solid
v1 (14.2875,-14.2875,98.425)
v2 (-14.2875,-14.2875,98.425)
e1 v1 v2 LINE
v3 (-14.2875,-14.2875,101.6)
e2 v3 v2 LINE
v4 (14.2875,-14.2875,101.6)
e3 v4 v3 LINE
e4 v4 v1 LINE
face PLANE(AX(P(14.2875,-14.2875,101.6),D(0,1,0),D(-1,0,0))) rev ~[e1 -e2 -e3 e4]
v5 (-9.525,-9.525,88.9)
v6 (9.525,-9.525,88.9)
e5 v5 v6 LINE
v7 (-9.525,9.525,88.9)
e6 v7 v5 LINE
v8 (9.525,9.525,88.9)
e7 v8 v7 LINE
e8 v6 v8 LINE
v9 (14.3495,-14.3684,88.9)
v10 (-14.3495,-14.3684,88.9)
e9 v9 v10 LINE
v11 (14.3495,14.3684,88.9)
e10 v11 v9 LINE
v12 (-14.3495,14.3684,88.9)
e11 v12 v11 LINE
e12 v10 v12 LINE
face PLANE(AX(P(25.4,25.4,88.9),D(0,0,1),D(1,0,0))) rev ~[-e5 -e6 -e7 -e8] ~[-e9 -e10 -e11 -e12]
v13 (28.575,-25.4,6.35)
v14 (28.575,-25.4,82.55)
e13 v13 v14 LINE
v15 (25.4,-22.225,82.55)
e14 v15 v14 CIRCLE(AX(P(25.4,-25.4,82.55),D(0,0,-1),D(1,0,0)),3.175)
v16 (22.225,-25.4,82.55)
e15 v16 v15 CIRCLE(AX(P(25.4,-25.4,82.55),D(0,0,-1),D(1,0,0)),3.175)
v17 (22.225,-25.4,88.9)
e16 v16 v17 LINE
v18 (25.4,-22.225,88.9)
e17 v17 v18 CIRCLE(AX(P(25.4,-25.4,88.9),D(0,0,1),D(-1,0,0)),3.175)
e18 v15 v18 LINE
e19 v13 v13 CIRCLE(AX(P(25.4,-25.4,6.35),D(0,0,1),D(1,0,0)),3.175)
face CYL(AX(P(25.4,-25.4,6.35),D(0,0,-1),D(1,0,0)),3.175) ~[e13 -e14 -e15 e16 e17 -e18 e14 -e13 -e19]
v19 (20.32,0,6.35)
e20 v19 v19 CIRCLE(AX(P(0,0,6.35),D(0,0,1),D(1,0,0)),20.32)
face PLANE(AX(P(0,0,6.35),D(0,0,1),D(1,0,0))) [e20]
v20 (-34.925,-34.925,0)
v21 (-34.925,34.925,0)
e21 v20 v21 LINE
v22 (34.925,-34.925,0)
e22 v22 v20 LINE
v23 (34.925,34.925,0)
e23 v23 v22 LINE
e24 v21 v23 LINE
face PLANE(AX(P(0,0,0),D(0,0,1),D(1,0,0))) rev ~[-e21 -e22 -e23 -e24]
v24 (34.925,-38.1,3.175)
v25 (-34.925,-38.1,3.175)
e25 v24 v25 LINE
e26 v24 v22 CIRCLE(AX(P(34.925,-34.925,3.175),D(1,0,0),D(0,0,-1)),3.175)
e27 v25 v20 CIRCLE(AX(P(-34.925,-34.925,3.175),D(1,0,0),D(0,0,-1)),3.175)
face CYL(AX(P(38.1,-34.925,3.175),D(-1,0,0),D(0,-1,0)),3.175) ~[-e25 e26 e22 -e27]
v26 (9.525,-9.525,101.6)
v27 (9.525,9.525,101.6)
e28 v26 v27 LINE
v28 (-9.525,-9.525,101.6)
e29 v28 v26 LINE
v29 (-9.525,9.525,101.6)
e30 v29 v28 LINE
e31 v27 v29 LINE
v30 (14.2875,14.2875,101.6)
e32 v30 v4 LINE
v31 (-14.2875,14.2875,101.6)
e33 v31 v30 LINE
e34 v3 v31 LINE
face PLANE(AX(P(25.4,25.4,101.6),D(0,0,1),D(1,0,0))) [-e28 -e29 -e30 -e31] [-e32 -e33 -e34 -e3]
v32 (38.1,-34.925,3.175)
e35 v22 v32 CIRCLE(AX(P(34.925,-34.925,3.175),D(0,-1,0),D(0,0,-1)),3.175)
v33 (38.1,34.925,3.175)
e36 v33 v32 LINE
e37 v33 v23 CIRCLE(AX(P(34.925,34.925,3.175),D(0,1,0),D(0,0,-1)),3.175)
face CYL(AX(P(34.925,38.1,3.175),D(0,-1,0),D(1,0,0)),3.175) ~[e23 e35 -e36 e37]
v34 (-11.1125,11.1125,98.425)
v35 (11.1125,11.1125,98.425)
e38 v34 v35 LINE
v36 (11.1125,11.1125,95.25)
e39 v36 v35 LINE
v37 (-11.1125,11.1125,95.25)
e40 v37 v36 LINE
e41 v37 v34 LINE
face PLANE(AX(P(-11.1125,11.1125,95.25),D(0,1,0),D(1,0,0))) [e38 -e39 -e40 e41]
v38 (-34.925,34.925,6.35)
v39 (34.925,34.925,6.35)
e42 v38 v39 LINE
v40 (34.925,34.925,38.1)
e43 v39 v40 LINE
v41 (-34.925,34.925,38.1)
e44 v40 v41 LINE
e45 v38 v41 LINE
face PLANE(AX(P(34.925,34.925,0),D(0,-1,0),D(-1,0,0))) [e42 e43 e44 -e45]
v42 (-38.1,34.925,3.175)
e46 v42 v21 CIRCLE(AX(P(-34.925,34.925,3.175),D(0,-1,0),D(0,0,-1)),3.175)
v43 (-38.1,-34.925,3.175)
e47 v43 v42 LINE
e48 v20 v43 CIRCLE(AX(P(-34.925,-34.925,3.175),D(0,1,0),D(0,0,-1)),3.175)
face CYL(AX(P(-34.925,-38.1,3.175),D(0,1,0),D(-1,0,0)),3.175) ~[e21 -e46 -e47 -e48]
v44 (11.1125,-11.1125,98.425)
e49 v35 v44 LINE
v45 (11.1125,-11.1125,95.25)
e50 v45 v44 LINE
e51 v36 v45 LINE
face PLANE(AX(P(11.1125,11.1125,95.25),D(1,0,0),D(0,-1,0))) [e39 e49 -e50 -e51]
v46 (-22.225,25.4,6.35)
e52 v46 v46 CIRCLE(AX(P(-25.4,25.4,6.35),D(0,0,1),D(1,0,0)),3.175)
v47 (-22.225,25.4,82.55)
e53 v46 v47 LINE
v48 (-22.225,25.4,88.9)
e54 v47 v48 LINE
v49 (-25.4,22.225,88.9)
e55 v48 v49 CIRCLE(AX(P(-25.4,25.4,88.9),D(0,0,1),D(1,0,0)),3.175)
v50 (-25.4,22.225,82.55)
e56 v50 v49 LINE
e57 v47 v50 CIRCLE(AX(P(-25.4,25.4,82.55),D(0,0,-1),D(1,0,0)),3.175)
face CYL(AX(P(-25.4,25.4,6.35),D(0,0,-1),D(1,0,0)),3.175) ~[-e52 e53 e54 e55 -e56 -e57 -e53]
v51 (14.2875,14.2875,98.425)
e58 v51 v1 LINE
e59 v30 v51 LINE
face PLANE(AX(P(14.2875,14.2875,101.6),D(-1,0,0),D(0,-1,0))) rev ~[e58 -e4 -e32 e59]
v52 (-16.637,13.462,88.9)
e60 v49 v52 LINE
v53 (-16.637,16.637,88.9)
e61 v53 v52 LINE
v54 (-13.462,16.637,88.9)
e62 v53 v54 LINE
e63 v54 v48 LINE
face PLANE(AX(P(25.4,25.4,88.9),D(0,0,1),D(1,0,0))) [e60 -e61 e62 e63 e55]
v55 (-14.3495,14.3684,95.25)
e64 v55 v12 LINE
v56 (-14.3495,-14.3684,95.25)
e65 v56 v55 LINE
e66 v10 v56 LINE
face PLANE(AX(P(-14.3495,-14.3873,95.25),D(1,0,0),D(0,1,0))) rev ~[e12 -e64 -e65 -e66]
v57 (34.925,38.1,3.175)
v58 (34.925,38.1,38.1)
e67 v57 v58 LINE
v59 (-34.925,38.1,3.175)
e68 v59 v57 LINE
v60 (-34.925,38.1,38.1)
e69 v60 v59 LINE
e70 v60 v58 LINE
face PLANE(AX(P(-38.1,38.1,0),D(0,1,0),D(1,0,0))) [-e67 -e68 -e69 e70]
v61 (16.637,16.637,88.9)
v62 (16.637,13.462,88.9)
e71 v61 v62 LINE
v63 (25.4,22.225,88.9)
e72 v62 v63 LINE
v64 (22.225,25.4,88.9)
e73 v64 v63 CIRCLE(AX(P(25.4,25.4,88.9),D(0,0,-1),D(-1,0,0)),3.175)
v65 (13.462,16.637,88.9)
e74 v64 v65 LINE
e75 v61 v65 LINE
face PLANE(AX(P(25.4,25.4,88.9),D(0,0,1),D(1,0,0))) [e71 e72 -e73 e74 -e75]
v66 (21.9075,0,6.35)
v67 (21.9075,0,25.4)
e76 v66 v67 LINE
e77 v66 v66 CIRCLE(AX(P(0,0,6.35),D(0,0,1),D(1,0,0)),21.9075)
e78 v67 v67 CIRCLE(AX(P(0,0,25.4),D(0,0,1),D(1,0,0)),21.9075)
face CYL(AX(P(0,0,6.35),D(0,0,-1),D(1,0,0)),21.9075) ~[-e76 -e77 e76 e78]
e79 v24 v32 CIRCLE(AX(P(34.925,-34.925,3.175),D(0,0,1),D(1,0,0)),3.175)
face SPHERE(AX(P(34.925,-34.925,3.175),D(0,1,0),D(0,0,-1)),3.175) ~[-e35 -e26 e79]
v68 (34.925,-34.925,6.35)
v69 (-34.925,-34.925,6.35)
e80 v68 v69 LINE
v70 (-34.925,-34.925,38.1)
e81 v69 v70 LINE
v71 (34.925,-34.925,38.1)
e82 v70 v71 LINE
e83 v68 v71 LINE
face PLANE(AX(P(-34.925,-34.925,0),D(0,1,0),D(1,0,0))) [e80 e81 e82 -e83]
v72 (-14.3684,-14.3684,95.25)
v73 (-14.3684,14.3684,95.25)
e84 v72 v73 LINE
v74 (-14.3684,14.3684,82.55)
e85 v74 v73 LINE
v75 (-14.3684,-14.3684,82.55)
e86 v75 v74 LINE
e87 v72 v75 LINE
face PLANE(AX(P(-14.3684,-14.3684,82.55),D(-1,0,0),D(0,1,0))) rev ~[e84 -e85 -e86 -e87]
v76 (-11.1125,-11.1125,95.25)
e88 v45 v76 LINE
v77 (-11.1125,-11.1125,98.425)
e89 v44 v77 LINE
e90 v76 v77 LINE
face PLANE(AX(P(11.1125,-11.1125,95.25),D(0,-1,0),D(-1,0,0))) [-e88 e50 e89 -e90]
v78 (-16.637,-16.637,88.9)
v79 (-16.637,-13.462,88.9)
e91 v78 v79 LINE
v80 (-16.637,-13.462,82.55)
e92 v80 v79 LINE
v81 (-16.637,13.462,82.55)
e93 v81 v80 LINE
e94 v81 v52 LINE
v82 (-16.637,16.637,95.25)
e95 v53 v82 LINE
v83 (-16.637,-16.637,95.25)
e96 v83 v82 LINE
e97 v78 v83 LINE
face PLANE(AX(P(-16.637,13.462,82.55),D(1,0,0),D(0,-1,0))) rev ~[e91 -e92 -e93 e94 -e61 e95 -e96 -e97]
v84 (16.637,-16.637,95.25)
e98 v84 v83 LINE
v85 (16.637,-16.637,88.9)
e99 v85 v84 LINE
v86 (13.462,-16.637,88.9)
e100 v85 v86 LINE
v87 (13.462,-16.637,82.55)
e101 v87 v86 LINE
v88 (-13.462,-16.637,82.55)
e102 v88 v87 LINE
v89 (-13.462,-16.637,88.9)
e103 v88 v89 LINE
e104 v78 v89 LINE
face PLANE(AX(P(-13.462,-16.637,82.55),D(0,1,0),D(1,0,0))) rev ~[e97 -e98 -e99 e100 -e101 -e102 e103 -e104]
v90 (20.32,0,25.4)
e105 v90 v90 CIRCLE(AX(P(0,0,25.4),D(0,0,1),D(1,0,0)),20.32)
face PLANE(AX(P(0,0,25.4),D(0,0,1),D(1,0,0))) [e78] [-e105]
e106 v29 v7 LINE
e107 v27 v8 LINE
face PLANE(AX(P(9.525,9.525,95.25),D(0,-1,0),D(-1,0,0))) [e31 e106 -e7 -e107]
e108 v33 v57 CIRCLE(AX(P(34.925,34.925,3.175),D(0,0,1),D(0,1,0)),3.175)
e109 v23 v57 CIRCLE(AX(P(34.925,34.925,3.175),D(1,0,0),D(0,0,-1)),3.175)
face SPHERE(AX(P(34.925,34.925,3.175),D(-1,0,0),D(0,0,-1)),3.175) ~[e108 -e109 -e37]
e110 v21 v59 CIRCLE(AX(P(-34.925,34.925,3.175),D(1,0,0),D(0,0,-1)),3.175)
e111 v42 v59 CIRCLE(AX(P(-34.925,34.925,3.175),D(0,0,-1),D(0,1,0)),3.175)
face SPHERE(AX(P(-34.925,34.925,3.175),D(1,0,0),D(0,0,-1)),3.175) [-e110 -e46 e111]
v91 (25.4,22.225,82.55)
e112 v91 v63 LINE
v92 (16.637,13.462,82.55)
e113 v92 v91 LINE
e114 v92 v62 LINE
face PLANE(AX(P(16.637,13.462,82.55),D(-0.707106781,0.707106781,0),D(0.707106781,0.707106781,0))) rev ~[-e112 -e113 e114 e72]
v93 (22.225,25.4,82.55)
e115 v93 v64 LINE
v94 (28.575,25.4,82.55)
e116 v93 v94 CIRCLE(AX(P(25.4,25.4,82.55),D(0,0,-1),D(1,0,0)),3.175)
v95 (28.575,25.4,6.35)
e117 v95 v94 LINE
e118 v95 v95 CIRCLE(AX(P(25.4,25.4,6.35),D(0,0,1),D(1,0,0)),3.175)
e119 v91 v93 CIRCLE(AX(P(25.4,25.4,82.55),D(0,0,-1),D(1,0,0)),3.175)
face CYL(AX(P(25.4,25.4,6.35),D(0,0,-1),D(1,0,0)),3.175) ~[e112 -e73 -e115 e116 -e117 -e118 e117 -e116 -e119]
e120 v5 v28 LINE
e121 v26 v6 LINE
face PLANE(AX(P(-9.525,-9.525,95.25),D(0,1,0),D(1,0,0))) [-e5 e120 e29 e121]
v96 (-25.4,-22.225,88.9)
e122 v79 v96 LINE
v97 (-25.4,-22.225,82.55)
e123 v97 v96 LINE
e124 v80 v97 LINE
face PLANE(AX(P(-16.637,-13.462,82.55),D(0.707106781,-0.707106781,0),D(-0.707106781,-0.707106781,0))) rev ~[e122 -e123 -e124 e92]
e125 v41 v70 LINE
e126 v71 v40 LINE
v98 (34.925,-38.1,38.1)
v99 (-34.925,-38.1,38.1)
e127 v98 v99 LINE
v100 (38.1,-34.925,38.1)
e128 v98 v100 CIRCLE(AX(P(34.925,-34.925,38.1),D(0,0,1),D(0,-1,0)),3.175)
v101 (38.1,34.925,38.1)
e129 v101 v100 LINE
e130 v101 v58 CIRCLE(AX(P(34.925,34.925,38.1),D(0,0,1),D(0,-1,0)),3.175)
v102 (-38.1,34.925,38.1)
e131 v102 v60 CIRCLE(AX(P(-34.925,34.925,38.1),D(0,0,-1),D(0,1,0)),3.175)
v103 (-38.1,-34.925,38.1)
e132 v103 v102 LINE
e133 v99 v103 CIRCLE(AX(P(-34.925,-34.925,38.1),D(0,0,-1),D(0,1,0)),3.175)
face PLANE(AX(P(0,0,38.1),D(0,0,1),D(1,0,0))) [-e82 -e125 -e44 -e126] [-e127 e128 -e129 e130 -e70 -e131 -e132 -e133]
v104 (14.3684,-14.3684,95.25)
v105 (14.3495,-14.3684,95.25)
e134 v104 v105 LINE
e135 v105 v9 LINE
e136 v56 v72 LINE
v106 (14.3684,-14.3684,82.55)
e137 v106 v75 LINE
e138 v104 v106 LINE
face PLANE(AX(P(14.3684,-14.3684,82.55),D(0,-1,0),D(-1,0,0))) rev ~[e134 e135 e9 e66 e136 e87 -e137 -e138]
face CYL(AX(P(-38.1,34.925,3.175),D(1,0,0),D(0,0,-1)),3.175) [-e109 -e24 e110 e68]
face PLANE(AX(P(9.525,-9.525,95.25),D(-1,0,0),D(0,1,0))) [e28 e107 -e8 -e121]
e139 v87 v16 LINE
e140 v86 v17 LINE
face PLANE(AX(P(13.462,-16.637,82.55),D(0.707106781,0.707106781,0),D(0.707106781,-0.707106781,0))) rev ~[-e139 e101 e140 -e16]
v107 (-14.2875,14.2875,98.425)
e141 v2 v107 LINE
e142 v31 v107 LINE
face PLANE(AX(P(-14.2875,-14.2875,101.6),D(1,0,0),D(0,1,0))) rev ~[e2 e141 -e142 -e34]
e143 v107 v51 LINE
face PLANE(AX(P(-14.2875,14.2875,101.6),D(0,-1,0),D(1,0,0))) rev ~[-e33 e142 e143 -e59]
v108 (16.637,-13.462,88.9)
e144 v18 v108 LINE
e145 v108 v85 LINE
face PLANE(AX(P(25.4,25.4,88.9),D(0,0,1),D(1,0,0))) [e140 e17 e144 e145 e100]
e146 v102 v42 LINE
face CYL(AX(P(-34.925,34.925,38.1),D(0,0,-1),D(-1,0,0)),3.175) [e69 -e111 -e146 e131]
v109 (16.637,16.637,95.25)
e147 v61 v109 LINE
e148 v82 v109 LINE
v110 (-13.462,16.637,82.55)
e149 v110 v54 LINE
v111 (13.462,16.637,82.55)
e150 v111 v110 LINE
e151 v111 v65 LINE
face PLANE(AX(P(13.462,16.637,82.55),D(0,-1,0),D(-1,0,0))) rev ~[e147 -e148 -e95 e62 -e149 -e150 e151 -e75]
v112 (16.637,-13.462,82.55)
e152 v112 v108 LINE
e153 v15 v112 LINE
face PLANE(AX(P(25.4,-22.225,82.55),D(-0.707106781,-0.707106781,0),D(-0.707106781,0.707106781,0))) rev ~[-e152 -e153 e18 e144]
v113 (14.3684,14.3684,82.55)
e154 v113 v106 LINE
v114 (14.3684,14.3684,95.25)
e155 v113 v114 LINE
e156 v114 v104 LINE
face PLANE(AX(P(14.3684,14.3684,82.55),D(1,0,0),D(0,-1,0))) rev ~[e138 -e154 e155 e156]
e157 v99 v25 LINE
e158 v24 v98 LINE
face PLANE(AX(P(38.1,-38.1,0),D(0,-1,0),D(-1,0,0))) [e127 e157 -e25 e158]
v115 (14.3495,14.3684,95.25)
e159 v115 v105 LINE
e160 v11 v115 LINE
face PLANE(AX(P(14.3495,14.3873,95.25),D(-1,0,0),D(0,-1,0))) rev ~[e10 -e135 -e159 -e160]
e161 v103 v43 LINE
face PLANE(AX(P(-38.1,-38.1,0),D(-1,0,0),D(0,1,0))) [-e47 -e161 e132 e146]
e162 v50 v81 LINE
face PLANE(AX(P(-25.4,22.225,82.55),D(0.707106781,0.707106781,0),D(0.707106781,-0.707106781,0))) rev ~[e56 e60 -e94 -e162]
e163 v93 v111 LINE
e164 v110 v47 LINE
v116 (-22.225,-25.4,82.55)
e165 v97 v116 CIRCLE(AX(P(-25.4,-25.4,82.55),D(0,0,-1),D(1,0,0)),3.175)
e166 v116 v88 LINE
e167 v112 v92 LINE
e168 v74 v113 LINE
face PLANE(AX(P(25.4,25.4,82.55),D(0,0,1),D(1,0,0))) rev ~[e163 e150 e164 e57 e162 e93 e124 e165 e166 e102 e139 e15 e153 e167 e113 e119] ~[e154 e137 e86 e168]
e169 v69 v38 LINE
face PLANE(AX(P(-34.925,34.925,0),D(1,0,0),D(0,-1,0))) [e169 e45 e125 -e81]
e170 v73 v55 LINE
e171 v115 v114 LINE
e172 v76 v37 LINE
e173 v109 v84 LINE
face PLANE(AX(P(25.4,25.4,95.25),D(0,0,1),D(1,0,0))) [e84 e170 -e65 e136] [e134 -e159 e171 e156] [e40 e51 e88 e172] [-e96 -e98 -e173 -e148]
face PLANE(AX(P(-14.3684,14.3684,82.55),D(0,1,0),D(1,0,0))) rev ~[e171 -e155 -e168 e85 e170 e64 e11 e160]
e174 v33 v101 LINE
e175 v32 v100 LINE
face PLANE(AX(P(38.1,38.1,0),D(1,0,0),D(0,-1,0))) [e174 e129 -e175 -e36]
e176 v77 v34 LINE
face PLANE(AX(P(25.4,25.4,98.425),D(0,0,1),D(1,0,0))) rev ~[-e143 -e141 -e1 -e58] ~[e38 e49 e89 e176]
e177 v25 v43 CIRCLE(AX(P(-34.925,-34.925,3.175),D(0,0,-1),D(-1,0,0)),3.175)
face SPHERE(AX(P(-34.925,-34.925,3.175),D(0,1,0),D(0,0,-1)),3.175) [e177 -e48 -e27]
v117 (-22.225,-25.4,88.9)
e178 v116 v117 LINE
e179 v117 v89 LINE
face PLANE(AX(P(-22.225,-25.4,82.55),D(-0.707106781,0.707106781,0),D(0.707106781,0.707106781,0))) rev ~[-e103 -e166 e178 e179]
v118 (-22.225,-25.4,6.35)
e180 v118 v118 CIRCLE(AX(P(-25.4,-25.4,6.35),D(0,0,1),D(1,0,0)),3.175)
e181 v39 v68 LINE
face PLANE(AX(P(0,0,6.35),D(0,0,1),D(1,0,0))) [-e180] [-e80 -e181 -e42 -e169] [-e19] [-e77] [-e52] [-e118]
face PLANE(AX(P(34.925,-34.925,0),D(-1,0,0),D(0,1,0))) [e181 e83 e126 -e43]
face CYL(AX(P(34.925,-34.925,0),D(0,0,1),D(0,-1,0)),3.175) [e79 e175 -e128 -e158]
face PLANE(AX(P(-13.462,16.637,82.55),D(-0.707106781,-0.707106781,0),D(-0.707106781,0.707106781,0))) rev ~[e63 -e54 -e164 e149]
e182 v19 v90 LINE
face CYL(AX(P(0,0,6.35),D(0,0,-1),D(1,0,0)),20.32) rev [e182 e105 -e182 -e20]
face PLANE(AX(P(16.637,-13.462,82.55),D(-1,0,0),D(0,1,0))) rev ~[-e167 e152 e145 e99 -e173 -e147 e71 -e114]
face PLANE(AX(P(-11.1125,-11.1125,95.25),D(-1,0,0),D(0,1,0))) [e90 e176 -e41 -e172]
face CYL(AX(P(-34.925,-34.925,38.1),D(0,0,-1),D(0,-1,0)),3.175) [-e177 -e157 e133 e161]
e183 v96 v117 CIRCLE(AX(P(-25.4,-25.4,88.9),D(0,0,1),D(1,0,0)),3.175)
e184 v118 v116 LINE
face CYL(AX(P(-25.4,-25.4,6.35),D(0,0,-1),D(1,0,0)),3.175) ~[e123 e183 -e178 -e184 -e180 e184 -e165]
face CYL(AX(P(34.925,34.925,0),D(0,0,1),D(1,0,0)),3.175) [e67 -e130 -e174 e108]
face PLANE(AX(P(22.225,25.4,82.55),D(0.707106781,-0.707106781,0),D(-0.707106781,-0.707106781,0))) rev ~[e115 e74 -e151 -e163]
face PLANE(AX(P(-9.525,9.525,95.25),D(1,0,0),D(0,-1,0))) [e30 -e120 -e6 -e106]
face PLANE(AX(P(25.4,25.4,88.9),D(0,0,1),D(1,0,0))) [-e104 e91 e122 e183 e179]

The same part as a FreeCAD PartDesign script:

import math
import FreeCAD as App
import Part
import Sketcher
Q = App.Units.Quantity


def edges_at(feature, points):
    """Names of the edges that pass closest to the given points."""
    edges = feature.Shape.Edges
    near = lambda p: min(range(len(edges)), key=lambda i: edges[i].distToShape(Part.Vertex(*p))[0])
    return sorted({f"Edge{near(p) + 1}" for p in points})

doc = App.newDocument("Part")
body = doc.addObject("PartDesign::Body", "Body")

sketch1 = body.newObject("Sketcher::SketchObject", "Sketch")
sketch1.AttachmentSupport = (doc.getObject("XY_Plane"), [""])
sketch1.MapMode = "FlatFace"
sketch1.addGeometry(Part.LineSegment(App.Vector(-38.1, -38.1, 0), App.Vector(38.1, -38.1, 0)), False)
sketch1.addGeometry(Part.LineSegment(App.Vector(38.1, -38.1, 0), App.Vector(38.1, 38.1, 0)), False)
sketch1.addGeometry(Part.LineSegment(App.Vector(38.1, 38.1, 0), App.Vector(-38.1, 38.1, 0)), False)
sketch1.addGeometry(Part.LineSegment(App.Vector(-38.1, 38.1, 0), App.Vector(-38.1, -38.1, 0)), False)
sketch1.addConstraint(Sketcher.Constraint("Coincident", 0, 2, 1, 1))
sketch1.addConstraint(Sketcher.Constraint("Coincident", 1, 2, 2, 1))
sketch1.addConstraint(Sketcher.Constraint("Coincident", 2, 2, 3, 1))
sketch1.addConstraint(Sketcher.Constraint("Coincident", 3, 2, 0, 1))
sketch1.addConstraint(Sketcher.Constraint("Horizontal", 0))
sketch1.addConstraint(Sketcher.Constraint("Vertical", 1))
sketch1.addConstraint(Sketcher.Constraint("Horizontal", 2))
sketch1.addConstraint(Sketcher.Constraint("Vertical", 3))
sketch1.addConstraint(Sketcher.Constraint("Symmetric", 0, 2, 2, 2, -1, 1))
sketch1.addConstraint(Sketcher.Constraint("Equal", 2, 1))
sketch1.addConstraint(Sketcher.Constraint("DistanceX", 0, 1, 0, 2, Q("3 in")))
pad1 = body.newObject("PartDesign::Pad", "Pad")
pad1.Profile = sketch1
pad1.Length = Q("0.25 in")

sketch2 = body.newObject("Sketcher::SketchObject", "Sketch001")
sketch2.AttachmentSupport = (doc.getObject("XY_Plane"), [""])
sketch2.MapMode = "FlatFace"
sketch2.addGeometry(Part.LineSegment(App.Vector(-38.1, -38.1, 0), App.Vector(38.1, -38.1, 0)), False)
sketch2.addGeometry(Part.LineSegment(App.Vector(38.1, -38.1, 0), App.Vector(38.1, 38.1, 0)), False)
sketch2.addGeometry(Part.LineSegment(App.Vector(38.1, 38.1, 0), App.Vector(-38.1, 38.1, 0)), False)
sketch2.addGeometry(Part.LineSegment(App.Vector(-38.1, 38.1, 0), App.Vector(-38.1, -38.1, 0)), False)
sketch2.addGeometry(Part.LineSegment(App.Vector(34.925, -34.925, 0), App.Vector(-34.925, -34.925, 0)), False)
sketch2.addGeometry(Part.LineSegment(App.Vector(-34.925, -34.925, 0), App.Vector(-34.925, 34.925, 0)), False)
sketch2.addGeometry(Part.LineSegment(App.Vector(-34.925, 34.925, 0), App.Vector(34.925, 34.925, 0)), False)
sketch2.addGeometry(Part.LineSegment(App.Vector(34.925, 34.925, 0), App.Vector(34.925, -34.925, 0)), False)
sketch2.addConstraint(Sketcher.Constraint("Coincident", 0, 2, 1, 1))
sketch2.addConstraint(Sketcher.Constraint("Coincident", 1, 2, 2, 1))
sketch2.addConstraint(Sketcher.Constraint("Coincident", 2, 2, 3, 1))
sketch2.addConstraint(Sketcher.Constraint("Coincident", 3, 2, 0, 1))
sketch2.addConstraint(Sketcher.Constraint("Coincident", 4, 2, 5, 1))
sketch2.addConstraint(Sketcher.Constraint("Coincident", 5, 2, 6, 1))
sketch2.addConstraint(Sketcher.Constraint("Coincident", 6, 2, 7, 1))
sketch2.addConstraint(Sketcher.Constraint("Coincident", 7, 2, 4, 1))
sketch2.addConstraint(Sketcher.Constraint("Horizontal", 0))
sketch2.addConstraint(Sketcher.Constraint("Vertical", 1))
sketch2.addConstraint(Sketcher.Constraint("Horizontal", 2))
sketch2.addConstraint(Sketcher.Constraint("Vertical", 3))
sketch2.addConstraint(Sketcher.Constraint("Horizontal", 4))
sketch2.addConstraint(Sketcher.Constraint("Vertical", 5))
sketch2.addConstraint(Sketcher.Constraint("Horizontal", 6))
sketch2.addConstraint(Sketcher.Constraint("Vertical", 7))
sketch2.addConstraint(Sketcher.Constraint("Symmetric", 0, 2, 2, 2, -1, 1))
sketch2.addConstraint(Sketcher.Constraint("Symmetric", 4, 2, 6, 2, -1, 1))
sketch2.addConstraint(Sketcher.Constraint("Equal", 2, 1))
sketch2.addConstraint(Sketcher.Constraint("Equal", 6, 5))
sketch2.addConstraint(Sketcher.Constraint("DistanceX", 0, 1, 0, 2, Q("3 in")))
sketch2.addConstraint(Sketcher.Constraint("DistanceX", 4, 2, 4, 1, Q("2.75 in")))
pad2 = body.newObject("PartDesign::Pad", "Pad001")
pad2.Profile = sketch2
pad2.Length = Q("1.5 in")
doc.recompute()

fillet = body.newObject("PartDesign::Fillet", "Fillet")
fillet.Base = (pad2, edges_at(pad2, [
    (0, 38.1, 0),
    (38.1, 0, 0),
    (-38.1, 0, 0),
    (0, -38.1, 0),
    (38.1, 38.1, 19.05),
    (-38.1, 38.1, 19.05),
    (38.1, -38.1, 19.05),
    (-38.1, -38.1, 19.05),
]))
fillet.Radius = Q("0.125 in")

sketch3 = body.newObject("Sketcher::SketchObject", "Sketch002")
sketch3.AttachmentSupport = (doc.getObject("XY_Plane"), [""])
sketch3.MapMode = "FlatFace"
sketch3.AttachmentOffset = App.Placement(App.Vector(0, 0, 0.25 * 25.4), App.Rotation())
sketch3.addGeometry(Part.Circle(App.Vector(0, 0, 0), App.Vector(0, 0, 1), 21.9075), False)
sketch3.addGeometry(Part.Circle(App.Vector(0, 0, 0), App.Vector(0, 0, 1), 20.32), False)
sketch3.addConstraint(Sketcher.Constraint("Coincident", 0, 3, -1, 1))
sketch3.addConstraint(Sketcher.Constraint("Coincident", 1, 3, -1, 1))
sketch3.addConstraint(Sketcher.Constraint("Diameter", 1, Q("1.6 in")))
sketch3.addConstraint(Sketcher.Constraint("Diameter", 0, Q("1.725 in")))
pad3 = body.newObject("PartDesign::Pad", "Pad002")
pad3.Profile = sketch3
pad3.Length = Q("0.75 in")

sketch4 = body.newObject("Sketcher::SketchObject", "Sketch003")
sketch4.AttachmentSupport = (doc.getObject("XY_Plane"), [""])
sketch4.MapMode = "FlatFace"
sketch4.AttachmentOffset = App.Placement(App.Vector(0, 0, 0.25 * 25.4), App.Rotation())
sketch4.addGeometry(Part.Circle(App.Vector(-25.4, -25.4, 0), App.Vector(0, 0, 1), 3.175), False)
sketch4.addGeometry(Part.Circle(App.Vector(25.4, -25.4, 0), App.Vector(0, 0, 1), 3.175), False)
sketch4.addGeometry(Part.Circle(App.Vector(-25.4, 25.4, 0), App.Vector(0, 0, 1), 3.175), False)
sketch4.addGeometry(Part.Circle(App.Vector(25.4, 25.4, 0), App.Vector(0, 0, 1), 3.175), False)
sketch4.addConstraint(Sketcher.Constraint("Equal", 0, 1))
sketch4.addConstraint(Sketcher.Constraint("Equal", 1, 2))
sketch4.addConstraint(Sketcher.Constraint("Equal", 2, 3))
sketch4.addConstraint(Sketcher.Constraint("Symmetric", 1, 3, 2, 3, -1, 1))
sketch4.addConstraint(Sketcher.Constraint("Symmetric", 0, 3, 3, 3, -1, 1))
sketch4.addConstraint(Sketcher.Constraint("Symmetric", 0, 3, 1, 3, -2))
sketch4.addConstraint(Sketcher.Constraint("Diameter", 0, Q("0.25 in")))
sketch4.addConstraint(Sketcher.Constraint("DistanceX", 0, 3, 1, 3, Q("2 in")))
sketch4.addConstraint(Sketcher.Constraint("DistanceY", 0, 3, 2, 3, Q("2 in")))
pad4 = body.newObject("PartDesign::Pad", "Pad003")
pad4.Profile = sketch4
pad4.Length = Q("3 in")

sketch5 = body.newObject("Sketcher::SketchObject", "Sketch004")
sketch5.AttachmentSupport = (doc.getObject("XY_Plane"), [""])
sketch5.MapMode = "FlatFace"
sketch5.AttachmentOffset = App.Placement(App.Vector(0, 0, 3.25 * 25.4), App.Rotation())
sketch5.addGeometry(Part.LineSegment(App.Vector(22.225, 25.4, 0), App.Vector(13.462, 16.637, 0)), False)
sketch5.addGeometry(Part.LineSegment(App.Vector(13.462, 16.637, 0), App.Vector(-13.462, 16.637, 0)), False)
sketch5.addGeometry(Part.LineSegment(App.Vector(-13.462, 16.637, 0), App.Vector(-22.225, 25.4, 0)), False)
sketch5.addGeometry(Part.ArcOfCircle(Part.Circle(App.Vector(-25.4, 25.4, 0), App.Vector(0, 0, 1), 3.175), math.radians(0), math.radians(270)), False)
sketch5.addGeometry(Part.LineSegment(App.Vector(-25.4, 22.225, 0), App.Vector(-16.637, 13.462, 0)), False)
sketch5.addGeometry(Part.LineSegment(App.Vector(-16.637, 13.462, 0), App.Vector(-16.637, -13.462, 0)), False)
sketch5.addGeometry(Part.LineSegment(App.Vector(-16.637, -13.462, 0), App.Vector(-25.4, -22.225, 0)), False)
sketch5.addGeometry(Part.ArcOfCircle(Part.Circle(App.Vector(-25.4, -25.4, 0), App.Vector(0, 0, 1), 3.175), math.radians(90), math.radians(360)), False)
sketch5.addGeometry(Part.LineSegment(App.Vector(-22.225, -25.4, 0), App.Vector(-13.462, -16.637, 0)), False)
sketch5.addGeometry(Part.LineSegment(App.Vector(-13.462, -16.637, 0), App.Vector(13.462, -16.637, 0)), False)
sketch5.addGeometry(Part.LineSegment(App.Vector(13.462, -16.637, 0), App.Vector(22.225, -25.4, 0)), False)
sketch5.addGeometry(Part.ArcOfCircle(Part.Circle(App.Vector(25.4, -25.4, 0), App.Vector(0, 0, 1), 3.175), math.radians(180), math.radians(450)), False)
sketch5.addGeometry(Part.LineSegment(App.Vector(25.4, -22.225, 0), App.Vector(16.637, -13.462, 0)), False)
sketch5.addGeometry(Part.LineSegment(App.Vector(16.637, -13.462, 0), App.Vector(16.637, 13.462, 0)), False)
sketch5.addGeometry(Part.LineSegment(App.Vector(16.637, 13.462, 0), App.Vector(25.4, 22.225, 0)), False)
sketch5.addGeometry(Part.ArcOfCircle(Part.Circle(App.Vector(25.4, 25.4, 0), App.Vector(0, 0, 1), 3.175), math.radians(-90), math.radians(180)), False)
sketch5.addGeometry(Part.LineSegment(App.Vector(-14.3684, -14.3684, 0), App.Vector(-14.3684, 14.3684, 0)), False)
sketch5.addGeometry(Part.LineSegment(App.Vector(-14.3684, 14.3684, 0), App.Vector(14.3684, 14.3684, 0)), False)
sketch5.addGeometry(Part.LineSegment(App.Vector(14.3684, 14.3684, 0), App.Vector(14.3684, -14.3684, 0)), False)
sketch5.addGeometry(Part.LineSegment(App.Vector(14.3684, -14.3684, 0), App.Vector(-14.3684, -14.3684, 0)), False)
sketch5.addConstraint(Sketcher.Constraint("Coincident", 0, 2, 1, 1))
sketch5.addConstraint(Sketcher.Constraint("Coincident", 1, 2, 2, 1))
sketch5.addConstraint(Sketcher.Constraint("Coincident", 2, 2, 3, 1))
sketch5.addConstraint(Sketcher.Constraint("Coincident", 3, 2, 4, 1))
sketch5.addConstraint(Sketcher.Constraint("Coincident", 4, 2, 5, 1))
sketch5.addConstraint(Sketcher.Constraint("Coincident", 5, 2, 6, 1))
sketch5.addConstraint(Sketcher.Constraint("Coincident", 6, 2, 7, 1))
sketch5.addConstraint(Sketcher.Constraint("Coincident", 7, 2, 8, 1))
sketch5.addConstraint(Sketcher.Constraint("Coincident", 8, 2, 9, 1))
sketch5.addConstraint(Sketcher.Constraint("Coincident", 9, 2, 10, 1))
sketch5.addConstraint(Sketcher.Constraint("Coincident", 10, 2, 11, 1))
sketch5.addConstraint(Sketcher.Constraint("Coincident", 11, 2, 12, 1))
sketch5.addConstraint(Sketcher.Constraint("Coincident", 12, 2, 13, 1))
sketch5.addConstraint(Sketcher.Constraint("Coincident", 13, 2, 14, 1))
sketch5.addConstraint(Sketcher.Constraint("Coincident", 14, 2, 15, 1))
sketch5.addConstraint(Sketcher.Constraint("Coincident", 15, 2, 0, 1))
sketch5.addConstraint(Sketcher.Constraint("Coincident", 16, 2, 17, 1))
sketch5.addConstraint(Sketcher.Constraint("Coincident", 17, 2, 18, 1))
sketch5.addConstraint(Sketcher.Constraint("Coincident", 18, 2, 19, 1))
sketch5.addConstraint(Sketcher.Constraint("Coincident", 19, 2, 16, 1))
sketch5.addConstraint(Sketcher.Constraint("Horizontal", 1))
sketch5.addConstraint(Sketcher.Constraint("Vertical", 5))
sketch5.addConstraint(Sketcher.Constraint("Horizontal", 9))
sketch5.addConstraint(Sketcher.Constraint("Vertical", 13))
sketch5.addConstraint(Sketcher.Constraint("Vertical", 16))
sketch5.addConstraint(Sketcher.Constraint("Horizontal", 17))
sketch5.addConstraint(Sketcher.Constraint("Vertical", 18))
sketch5.addConstraint(Sketcher.Constraint("Horizontal", 19))
sketch5.addConstraint(Sketcher.Constraint("Equal", 3, 7))
sketch5.addConstraint(Sketcher.Constraint("Equal", 7, 11))
sketch5.addConstraint(Sketcher.Constraint("Equal", 11, 15))
sketch5.addConstraint(Sketcher.Constraint("Symmetric", 3, 3, 11, 3, -1, 1))
sketch5.addConstraint(Sketcher.Constraint("Symmetric", 7, 3, 15, 3, -1, 1))
sketch5.addConstraint(Sketcher.Constraint("Symmetric", 0, 2, 8, 2, -1, 1))
sketch5.addConstraint(Sketcher.Constraint("Symmetric", 4, 2, 12, 2, -1, 1))
sketch5.addConstraint(Sketcher.Constraint("Symmetric", 16, 2, 18, 2, -1, 1))
sketch5.addConstraint(Sketcher.Constraint("Symmetric", 7, 3, 11, 3, -2))
sketch5.addConstraint(Sketcher.Constraint("Perpendicular", 0, 2))
sketch5.addConstraint(Sketcher.Constraint("Parallel", 2, 4))
sketch5.addConstraint(Sketcher.Constraint("Perpendicular", 4, 6))
sketch5.addConstraint(Sketcher.Constraint("Parallel", 6, 8))
sketch5.addConstraint(Sketcher.Constraint("Perpendicular", 8, 10))
sketch5.addConstraint(Sketcher.Constraint("Parallel", 10, 12))
sketch5.addConstraint(Sketcher.Constraint("Perpendicular", 12, 14))
sketch5.addConstraint(Sketcher.Constraint("Horizontal", 15, 3, 2, 2))
sketch5.addConstraint(Sketcher.Constraint("Horizontal", 11, 3, 7, 2))
sketch5.addConstraint(Sketcher.Constraint("Horizontal", 7, 2, 10, 2))
sketch5.addConstraint(Sketcher.Constraint("Horizontal", 5, 2, 12, 2))
sketch5.addConstraint(Sketcher.Constraint("Horizontal", 4, 2, 13, 2))
sketch5.addConstraint(Sketcher.Constraint("Vertical", 7, 3, 3, 2))
sketch5.addConstraint(Sketcher.Constraint("Vertical", 3, 2, 6, 2))
sketch5.addConstraint(Sketcher.Constraint("Equal", 9, 5))
sketch5.addConstraint(Sketcher.Constraint("Equal", 19, 16))
sketch5.addConstraint(Sketcher.Constraint("Equal", 2, 4))
sketch5.addConstraint(Sketcher.Constraint("DistanceY", 7, 3, 3, 3, Q("2 in")))
sketch5.addConstraint(Sketcher.Constraint("DistanceY", 9, 2, 0, 2, Q("1.31 in")))
sketch5.addConstraint(Sketcher.Constraint("Radius", 3, Q("0.125 in")))
sketch5.addConstraint(Sketcher.Constraint("DistanceX", 17, 1, 17, 2, Q("28.7368 mm")))
pad5 = body.newObject("PartDesign::Pad", "Pad004")
pad5.Profile = sketch5
pad5.Length = Q("0.25 in")

sketch6 = body.newObject("Sketcher::SketchObject", "Sketch005")
sketch6.AttachmentSupport = (doc.getObject("XY_Plane"), [""])
sketch6.MapMode = "FlatFace"
sketch6.AttachmentOffset = App.Placement(App.Vector(0, 0, 3.25 * 25.4), App.Rotation())
sketch6.addGeometry(Part.LineSegment(App.Vector(16.637, 16.637, 0), App.Vector(-16.637, 16.637, 0)), False)
sketch6.addGeometry(Part.LineSegment(App.Vector(-16.637, 16.637, 0), App.Vector(-16.637, -16.637, 0)), False)
sketch6.addGeometry(Part.LineSegment(App.Vector(-16.637, -16.637, 0), App.Vector(16.637, -16.637, 0)), False)
sketch6.addGeometry(Part.LineSegment(App.Vector(16.637, -16.637, 0), App.Vector(16.637, 16.637, 0)), False)
sketch6.addGeometry(Part.LineSegment(App.Vector(14.3684, 14.3684, 0), App.Vector(14.3684, -14.3684, 0)), False)
sketch6.addGeometry(Part.LineSegment(App.Vector(14.3684, -14.3684, 0), App.Vector(-14.3684, -14.3684, 0)), False)
sketch6.addGeometry(Part.LineSegment(App.Vector(-14.3684, -14.3684, 0), App.Vector(-14.3684, 14.3684, 0)), False)
sketch6.addGeometry(Part.LineSegment(App.Vector(-14.3684, 14.3684, 0), App.Vector(14.3684, 14.3684, 0)), False)
sketch6.addConstraint(Sketcher.Constraint("Coincident", 0, 2, 1, 1))
sketch6.addConstraint(Sketcher.Constraint("Coincident", 1, 2, 2, 1))
sketch6.addConstraint(Sketcher.Constraint("Coincident", 2, 2, 3, 1))
sketch6.addConstraint(Sketcher.Constraint("Coincident", 3, 2, 0, 1))
sketch6.addConstraint(Sketcher.Constraint("Coincident", 4, 2, 5, 1))
sketch6.addConstraint(Sketcher.Constraint("Coincident", 5, 2, 6, 1))
sketch6.addConstraint(Sketcher.Constraint("Coincident", 6, 2, 7, 1))
sketch6.addConstraint(Sketcher.Constraint("Coincident", 7, 2, 4, 1))
sketch6.addConstraint(Sketcher.Constraint("Horizontal", 0))
sketch6.addConstraint(Sketcher.Constraint("Vertical", 1))
sketch6.addConstraint(Sketcher.Constraint("Horizontal", 2))
sketch6.addConstraint(Sketcher.Constraint("Vertical", 3))
sketch6.addConstraint(Sketcher.Constraint("Vertical", 4))
sketch6.addConstraint(Sketcher.Constraint("Horizontal", 5))
sketch6.addConstraint(Sketcher.Constraint("Vertical", 6))
sketch6.addConstraint(Sketcher.Constraint("Horizontal", 7))
sketch6.addConstraint(Sketcher.Constraint("Symmetric", 0, 2, 2, 2, -1, 1))
sketch6.addConstraint(Sketcher.Constraint("Symmetric", 4, 2, 6, 2, -1, 1))
sketch6.addConstraint(Sketcher.Constraint("Equal", 2, 1))
sketch6.addConstraint(Sketcher.Constraint("Equal", 7, 4))
sketch6.addConstraint(Sketcher.Constraint("DistanceX", 0, 2, 0, 1, Q("1.31 in")))
sketch6.addConstraint(Sketcher.Constraint("DistanceX", 5, 2, 5, 1, Q("28.7368 mm")))
pad6 = body.newObject("PartDesign::Pad", "Pad005")
pad6.Profile = sketch6
pad6.Length = Q("0.5 in")

sketch7 = body.newObject("Sketcher::SketchObject", "Sketch006")
sketch7.AttachmentSupport = (doc.getObject("XY_Plane"), [""])
sketch7.MapMode = "FlatFace"
sketch7.AttachmentOffset = App.Placement(App.Vector(0, 0, 3.75 * 25.4), App.Rotation())
sketch7.addGeometry(Part.LineSegment(App.Vector(14.3495, -14.3873, 0), App.Vector(14.3495, 14.3873, 0)), False)
sketch7.addGeometry(Part.LineSegment(App.Vector(14.3495, 14.3873, 0), App.Vector(-14.3495, 14.3873, 0)), False)
sketch7.addGeometry(Part.LineSegment(App.Vector(-14.3495, 14.3873, 0), App.Vector(-14.3495, -14.3873, 0)), False)
sketch7.addGeometry(Part.LineSegment(App.Vector(-14.3495, -14.3873, 0), App.Vector(14.3495, -14.3873, 0)), False)
sketch7.addGeometry(Part.LineSegment(App.Vector(9.525, -9.525, 0), App.Vector(-9.525, -9.525, 0)), False)
sketch7.addGeometry(Part.LineSegment(App.Vector(-9.525, -9.525, 0), App.Vector(-9.525, 9.525, 0)), False)
sketch7.addGeometry(Part.LineSegment(App.Vector(-9.525, 9.525, 0), App.Vector(9.525, 9.525, 0)), False)
sketch7.addGeometry(Part.LineSegment(App.Vector(9.525, 9.525, 0), App.Vector(9.525, -9.525, 0)), False)
sketch7.addConstraint(Sketcher.Constraint("Coincident", 0, 2, 1, 1))
sketch7.addConstraint(Sketcher.Constraint("Coincident", 1, 2, 2, 1))
sketch7.addConstraint(Sketcher.Constraint("Coincident", 2, 2, 3, 1))
sketch7.addConstraint(Sketcher.Constraint("Coincident", 3, 2, 0, 1))
sketch7.addConstraint(Sketcher.Constraint("Coincident", 4, 2, 5, 1))
sketch7.addConstraint(Sketcher.Constraint("Coincident", 5, 2, 6, 1))
sketch7.addConstraint(Sketcher.Constraint("Coincident", 6, 2, 7, 1))
sketch7.addConstraint(Sketcher.Constraint("Coincident", 7, 2, 4, 1))
sketch7.addConstraint(Sketcher.Constraint("Vertical", 0))
sketch7.addConstraint(Sketcher.Constraint("Horizontal", 1))
sketch7.addConstraint(Sketcher.Constraint("Vertical", 2))
sketch7.addConstraint(Sketcher.Constraint("Horizontal", 3))
sketch7.addConstraint(Sketcher.Constraint("Horizontal", 4))
sketch7.addConstraint(Sketcher.Constraint("Vertical", 5))
sketch7.addConstraint(Sketcher.Constraint("Horizontal", 6))
sketch7.addConstraint(Sketcher.Constraint("Vertical", 7))
sketch7.addConstraint(Sketcher.Constraint("Symmetric", 0, 2, 2, 2, -1, 1))
sketch7.addConstraint(Sketcher.Constraint("Symmetric", 4, 2, 6, 2, -1, 1))
sketch7.addConstraint(Sketcher.Constraint("Equal", 6, 5))
sketch7.addConstraint(Sketcher.Constraint("DistanceX", 4, 2, 4, 1, Q("0.75 in")))
sketch7.addConstraint(Sketcher.Constraint("DistanceX", 1, 2, 1, 1, Q("28.699 mm")))
sketch7.addConstraint(Sketcher.Constraint("DistanceY", 0, 1, 0, 2, Q("28.7746 mm")))
pad7 = body.newObject("PartDesign::Pad", "Pad006")
pad7.Profile = sketch7
pad7.Length = Q("0.25 in")
pad7.Reversed = True

sketch8 = body.newObject("Sketcher::SketchObject", "Sketch007")
sketch8.AttachmentSupport = (doc.getObject("XY_Plane"), [""])
sketch8.MapMode = "FlatFace"
sketch8.AttachmentOffset = App.Placement(App.Vector(0, 0, 3.75 * 25.4), App.Rotation())
sketch8.addGeometry(Part.LineSegment(App.Vector(-11.1125, -11.1125, 0), App.Vector(11.1125, -11.1125, 0)), False)
sketch8.addGeometry(Part.LineSegment(App.Vector(11.1125, -11.1125, 0), App.Vector(11.1125, 11.1125, 0)), False)
sketch8.addGeometry(Part.LineSegment(App.Vector(11.1125, 11.1125, 0), App.Vector(-11.1125, 11.1125, 0)), False)
sketch8.addGeometry(Part.LineSegment(App.Vector(-11.1125, 11.1125, 0), App.Vector(-11.1125, -11.1125, 0)), False)
sketch8.addGeometry(Part.LineSegment(App.Vector(9.525, -9.525, 0), App.Vector(-9.525, -9.525, 0)), False)
sketch8.addGeometry(Part.LineSegment(App.Vector(-9.525, -9.525, 0), App.Vector(-9.525, 9.525, 0)), False)
sketch8.addGeometry(Part.LineSegment(App.Vector(-9.525, 9.525, 0), App.Vector(9.525, 9.525, 0)), False)
sketch8.addGeometry(Part.LineSegment(App.Vector(9.525, 9.525, 0), App.Vector(9.525, -9.525, 0)), False)
sketch8.addConstraint(Sketcher.Constraint("Coincident", 0, 2, 1, 1))
sketch8.addConstraint(Sketcher.Constraint("Coincident", 1, 2, 2, 1))
sketch8.addConstraint(Sketcher.Constraint("Coincident", 2, 2, 3, 1))
sketch8.addConstraint(Sketcher.Constraint("Coincident", 3, 2, 0, 1))
sketch8.addConstraint(Sketcher.Constraint("Coincident", 4, 2, 5, 1))
sketch8.addConstraint(Sketcher.Constraint("Coincident", 5, 2, 6, 1))
sketch8.addConstraint(Sketcher.Constraint("Coincident", 6, 2, 7, 1))
sketch8.addConstraint(Sketcher.Constraint("Coincident", 7, 2, 4, 1))
sketch8.addConstraint(Sketcher.Constraint("Horizontal", 0))
sketch8.addConstraint(Sketcher.Constraint("Vertical", 1))
sketch8.addConstraint(Sketcher.Constraint("Horizontal", 2))
sketch8.addConstraint(Sketcher.Constraint("Vertical", 3))
sketch8.addConstraint(Sketcher.Constraint("Horizontal", 4))
sketch8.addConstraint(Sketcher.Constraint("Vertical", 5))
sketch8.addConstraint(Sketcher.Constraint("Horizontal", 6))
sketch8.addConstraint(Sketcher.Constraint("Vertical", 7))
sketch8.addConstraint(Sketcher.Constraint("Symmetric", 0, 2, 2, 2, -1, 1))
sketch8.addConstraint(Sketcher.Constraint("Symmetric", 4, 2, 6, 2, -1, 1))
sketch8.addConstraint(Sketcher.Constraint("Equal", 2, 1))
sketch8.addConstraint(Sketcher.Constraint("Equal", 6, 5))
sketch8.addConstraint(Sketcher.Constraint("DistanceX", 4, 2, 4, 1, Q("0.75 in")))
sketch8.addConstraint(Sketcher.Constraint("DistanceX", 0, 1, 0, 2, Q("0.875 in")))
pad8 = body.newObject("PartDesign::Pad", "Pad007")
pad8.Profile = sketch8
pad8.Length = Q("0.25 in")

sketch9 = body.newObject("Sketcher::SketchObject", "Sketch008")
sketch9.AttachmentSupport = (doc.getObject("XY_Plane"), [""])
sketch9.MapMode = "FlatFace"
sketch9.AttachmentOffset = App.Placement(App.Vector(0, 0, 4 * 25.4), App.Rotation())
sketch9.addGeometry(Part.LineSegment(App.Vector(14.2875, 14.2875, 0), App.Vector(-14.2875, 14.2875, 0)), False)
sketch9.addGeometry(Part.LineSegment(App.Vector(-14.2875, 14.2875, 0), App.Vector(-14.2875, -14.2875, 0)), False)
sketch9.addGeometry(Part.LineSegment(App.Vector(-14.2875, -14.2875, 0), App.Vector(14.2875, -14.2875, 0)), False)
sketch9.addGeometry(Part.LineSegment(App.Vector(14.2875, -14.2875, 0), App.Vector(14.2875, 14.2875, 0)), False)
sketch9.addGeometry(Part.LineSegment(App.Vector(11.1125, 11.1125, 0), App.Vector(11.1125, -11.1125, 0)), False)
sketch9.addGeometry(Part.LineSegment(App.Vector(11.1125, -11.1125, 0), App.Vector(-11.1125, -11.1125, 0)), False)
sketch9.addGeometry(Part.LineSegment(App.Vector(-11.1125, -11.1125, 0), App.Vector(-11.1125, 11.1125, 0)), False)
sketch9.addGeometry(Part.LineSegment(App.Vector(-11.1125, 11.1125, 0), App.Vector(11.1125, 11.1125, 0)), False)
sketch9.addConstraint(Sketcher.Constraint("Coincident", 0, 2, 1, 1))
sketch9.addConstraint(Sketcher.Constraint("Coincident", 1, 2, 2, 1))
sketch9.addConstraint(Sketcher.Constraint("Coincident", 2, 2, 3, 1))
sketch9.addConstraint(Sketcher.Constraint("Coincident", 3, 2, 0, 1))
sketch9.addConstraint(Sketcher.Constraint("Coincident", 4, 2, 5, 1))
sketch9.addConstraint(Sketcher.Constraint("Coincident", 5, 2, 6, 1))
sketch9.addConstraint(Sketcher.Constraint("Coincident", 6, 2, 7, 1))
sketch9.addConstraint(Sketcher.Constraint("Coincident", 7, 2, 4, 1))
sketch9.addConstraint(Sketcher.Constraint("Horizontal", 0))
sketch9.addConstraint(Sketcher.Constraint("Vertical", 1))
sketch9.addConstraint(Sketcher.Constraint("Horizontal", 2))
sketch9.addConstraint(Sketcher.Constraint("Vertical", 3))
sketch9.addConstraint(Sketcher.Constraint("Vertical", 4))
sketch9.addConstraint(Sketcher.Constraint("Horizontal", 5))
sketch9.addConstraint(Sketcher.Constraint("Vertical", 6))
sketch9.addConstraint(Sketcher.Constraint("Horizontal", 7))
sketch9.addConstraint(Sketcher.Constraint("Symmetric", 0, 2, 2, 2, -1, 1))
sketch9.addConstraint(Sketcher.Constraint("Symmetric", 4, 2, 6, 2, -1, 1))
sketch9.addConstraint(Sketcher.Constraint("Equal", 2, 1))
sketch9.addConstraint(Sketcher.Constraint("Equal", 7, 4))
sketch9.addConstraint(Sketcher.Constraint("DistanceX", 0, 2, 0, 1, Q("1.125 in")))
sketch9.addConstraint(Sketcher.Constraint("DistanceX", 1, 2, 4, 2, Q("1 in")))
pad9 = body.newObject("PartDesign::Pad", "Pad008")
pad9.Profile = sketch9
pad9.Length = Q("0.125 in")
pad9.Reversed = True

doc.recompute()
